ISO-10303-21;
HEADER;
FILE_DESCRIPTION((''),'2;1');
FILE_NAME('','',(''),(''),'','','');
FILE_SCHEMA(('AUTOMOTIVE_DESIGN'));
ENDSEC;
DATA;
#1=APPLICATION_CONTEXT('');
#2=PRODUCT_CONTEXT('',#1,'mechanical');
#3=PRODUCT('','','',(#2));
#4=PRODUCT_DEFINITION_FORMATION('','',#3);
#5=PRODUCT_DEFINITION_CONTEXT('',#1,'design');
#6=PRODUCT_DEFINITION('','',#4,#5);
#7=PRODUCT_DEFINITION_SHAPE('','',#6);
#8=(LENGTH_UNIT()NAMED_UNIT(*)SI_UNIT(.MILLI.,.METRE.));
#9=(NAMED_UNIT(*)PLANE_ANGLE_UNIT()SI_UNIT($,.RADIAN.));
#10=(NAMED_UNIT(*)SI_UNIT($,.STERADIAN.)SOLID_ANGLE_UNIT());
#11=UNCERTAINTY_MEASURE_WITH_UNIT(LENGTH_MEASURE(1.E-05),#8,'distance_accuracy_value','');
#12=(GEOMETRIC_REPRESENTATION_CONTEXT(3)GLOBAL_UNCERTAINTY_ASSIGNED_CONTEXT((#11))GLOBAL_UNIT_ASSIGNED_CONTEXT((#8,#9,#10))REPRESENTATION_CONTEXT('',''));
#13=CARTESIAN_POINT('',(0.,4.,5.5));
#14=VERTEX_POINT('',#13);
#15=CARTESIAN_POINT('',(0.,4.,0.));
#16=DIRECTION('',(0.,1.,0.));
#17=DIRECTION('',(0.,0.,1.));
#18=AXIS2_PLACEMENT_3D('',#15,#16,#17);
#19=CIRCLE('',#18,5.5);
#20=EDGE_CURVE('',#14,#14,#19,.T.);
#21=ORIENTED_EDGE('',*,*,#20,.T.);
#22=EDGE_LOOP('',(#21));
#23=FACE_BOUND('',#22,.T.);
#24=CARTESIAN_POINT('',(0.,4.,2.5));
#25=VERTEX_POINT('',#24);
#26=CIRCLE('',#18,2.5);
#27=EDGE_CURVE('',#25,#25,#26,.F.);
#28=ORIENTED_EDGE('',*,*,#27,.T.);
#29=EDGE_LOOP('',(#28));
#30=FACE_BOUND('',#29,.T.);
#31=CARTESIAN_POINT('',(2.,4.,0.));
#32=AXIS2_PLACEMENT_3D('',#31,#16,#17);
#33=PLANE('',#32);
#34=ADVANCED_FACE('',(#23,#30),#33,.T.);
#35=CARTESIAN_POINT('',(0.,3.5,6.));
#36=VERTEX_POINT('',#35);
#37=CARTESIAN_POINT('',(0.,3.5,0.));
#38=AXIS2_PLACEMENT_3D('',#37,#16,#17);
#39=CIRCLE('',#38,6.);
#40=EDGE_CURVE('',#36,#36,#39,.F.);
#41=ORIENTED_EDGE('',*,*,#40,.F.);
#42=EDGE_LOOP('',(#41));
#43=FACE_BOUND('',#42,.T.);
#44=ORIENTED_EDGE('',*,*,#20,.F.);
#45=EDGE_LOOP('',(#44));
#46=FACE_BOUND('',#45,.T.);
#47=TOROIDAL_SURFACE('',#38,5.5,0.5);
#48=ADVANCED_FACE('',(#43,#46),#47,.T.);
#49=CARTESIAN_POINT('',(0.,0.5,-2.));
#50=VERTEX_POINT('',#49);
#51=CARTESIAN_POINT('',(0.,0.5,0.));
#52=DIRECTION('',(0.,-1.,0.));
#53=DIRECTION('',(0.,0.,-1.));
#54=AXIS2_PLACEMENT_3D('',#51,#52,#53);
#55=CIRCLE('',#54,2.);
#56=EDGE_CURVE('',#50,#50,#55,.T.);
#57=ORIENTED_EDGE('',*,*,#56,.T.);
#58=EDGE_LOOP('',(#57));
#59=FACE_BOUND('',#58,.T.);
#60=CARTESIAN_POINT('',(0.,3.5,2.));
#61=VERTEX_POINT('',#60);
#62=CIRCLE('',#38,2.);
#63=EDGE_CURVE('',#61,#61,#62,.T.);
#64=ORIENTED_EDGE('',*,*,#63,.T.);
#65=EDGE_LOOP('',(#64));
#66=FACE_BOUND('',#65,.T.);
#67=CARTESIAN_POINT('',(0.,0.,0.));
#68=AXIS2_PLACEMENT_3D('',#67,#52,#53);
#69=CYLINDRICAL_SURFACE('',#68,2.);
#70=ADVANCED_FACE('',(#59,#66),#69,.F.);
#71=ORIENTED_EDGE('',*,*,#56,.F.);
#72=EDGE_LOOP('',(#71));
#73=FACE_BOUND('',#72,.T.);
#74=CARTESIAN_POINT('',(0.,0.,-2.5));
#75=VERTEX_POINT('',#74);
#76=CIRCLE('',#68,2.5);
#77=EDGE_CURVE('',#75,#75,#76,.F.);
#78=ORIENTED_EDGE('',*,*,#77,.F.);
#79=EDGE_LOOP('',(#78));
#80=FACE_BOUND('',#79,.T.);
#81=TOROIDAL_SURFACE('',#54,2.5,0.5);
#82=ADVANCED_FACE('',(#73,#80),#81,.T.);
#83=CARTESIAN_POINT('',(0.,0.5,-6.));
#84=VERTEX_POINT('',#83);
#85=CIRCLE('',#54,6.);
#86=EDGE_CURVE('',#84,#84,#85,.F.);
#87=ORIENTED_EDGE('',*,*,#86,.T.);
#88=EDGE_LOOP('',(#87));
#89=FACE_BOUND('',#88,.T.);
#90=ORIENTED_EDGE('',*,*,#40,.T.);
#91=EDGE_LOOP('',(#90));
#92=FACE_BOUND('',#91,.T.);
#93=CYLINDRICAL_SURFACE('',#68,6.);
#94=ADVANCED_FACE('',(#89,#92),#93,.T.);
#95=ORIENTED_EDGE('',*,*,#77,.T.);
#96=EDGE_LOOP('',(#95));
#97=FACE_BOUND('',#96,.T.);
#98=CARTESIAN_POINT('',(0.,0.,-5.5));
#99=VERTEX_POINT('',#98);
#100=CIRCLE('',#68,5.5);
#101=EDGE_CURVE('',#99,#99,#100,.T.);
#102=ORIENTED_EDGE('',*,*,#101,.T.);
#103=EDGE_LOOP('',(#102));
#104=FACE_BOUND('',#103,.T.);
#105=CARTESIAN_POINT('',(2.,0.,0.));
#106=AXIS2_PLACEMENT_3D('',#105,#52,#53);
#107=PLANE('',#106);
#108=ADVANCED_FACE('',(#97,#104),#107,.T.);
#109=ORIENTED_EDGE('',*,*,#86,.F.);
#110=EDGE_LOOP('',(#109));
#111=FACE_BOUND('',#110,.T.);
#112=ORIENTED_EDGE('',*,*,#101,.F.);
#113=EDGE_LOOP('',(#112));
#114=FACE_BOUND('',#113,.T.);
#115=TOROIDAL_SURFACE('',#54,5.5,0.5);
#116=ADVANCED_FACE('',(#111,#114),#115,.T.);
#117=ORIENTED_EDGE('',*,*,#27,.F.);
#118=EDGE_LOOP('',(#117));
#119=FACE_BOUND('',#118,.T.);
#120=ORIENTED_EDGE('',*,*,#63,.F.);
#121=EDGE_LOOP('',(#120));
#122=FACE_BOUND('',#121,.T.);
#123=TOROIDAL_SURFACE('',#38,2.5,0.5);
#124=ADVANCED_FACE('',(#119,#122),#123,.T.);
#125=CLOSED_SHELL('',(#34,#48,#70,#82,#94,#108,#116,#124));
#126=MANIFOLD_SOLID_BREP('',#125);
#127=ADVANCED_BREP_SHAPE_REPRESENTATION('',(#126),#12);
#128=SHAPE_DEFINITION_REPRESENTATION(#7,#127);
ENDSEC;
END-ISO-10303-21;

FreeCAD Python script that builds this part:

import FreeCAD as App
import Part
import Sketcher
from FreeCAD import Vector
Q = App.Units.Quantity


def edges_at(feature, points):
    """Names of the edges that pass closest to the given points."""
    edges = feature.Shape.Edges
    near = lambda p: min(range(len(edges)), key=lambda i: edges[i].distToShape(Part.Vertex(*p))[0])
    return sorted({f"Edge{near(p) + 1}" for p in points})


def add_polygon(sketch, points):
    """Adds a closed chain of lines whose ends are joined by coincident constraints."""
    first, n = sketch.GeometryCount, len(points)
    for a, b in zip(points, points[1:] + points[:1]):
        sketch.addGeometry(Part.LineSegment(App.Vector(*a, 0), App.Vector(*b, 0)), False)
    for i in range(n):
        sketch.addConstraint(Sketcher.Constraint("Coincident", first + i, 2, first + (i + 1) % n, 1))

doc = App.newDocument("Part")
params = doc.addObject("Spreadsheet::Sheet", "Params")
for row, (alias, value) in enumerate([
    ("sketch1_width", "4 mm"),
    ("revolution_angle", "360 deg"),
    ("fillet_radius", "0.5 mm"),
], start=1):
    params.set(f"A{row}", alias)
    params.set(f"B{row}", "=" + value)
    params.setAlias(f"B{row}", alias)

body = doc.addObject("PartDesign::Body", "Body")

# Sketch on XY plane
sketch1 = body.newObject("Sketcher::SketchObject", "Sketch")
sketch1.AttachmentSupport = (doc.getObject("XY_Plane"), [""])
sketch1.MapMode = "FlatFace"
add_polygon(sketch1, [(2, 4), (2, 0), (6, 0), (6, 4)])  # lines 0-3
sketch1.addConstraint([
    Sketcher.Constraint("Vertical", 0),
    Sketcher.Constraint("Horizontal", 1),
    Sketcher.Constraint("Vertical", 2),
    Sketcher.Constraint("Horizontal", 3),
    Sketcher.Constraint("PointOnObject", 0, 2, -1),
    Sketcher.Constraint("Equal", 3, 0),
    Sketcher.Constraint("DistanceX", 1, 1, 1, 2, Q("4 mm")),
    Sketcher.Constraint("DistanceX", -1, 1, 0, 2, Q("2 mm")),
])
sketch1.setExpression("Constraints[10]", "Params.sketch1_width")
revolution = body.newObject("PartDesign::Revolution", "Revolution")
revolution.Profile = sketch1
revolution.ReferenceAxis = (sketch1, ["V_Axis"])
revolution.setExpression("Angle", "Params.revolution_angle")
doc.recompute()

fillet = body.newObject("PartDesign::Fillet", "Fillet")
fillet.Base = (revolution, edges_at(revolution, [
    (0, 0, 2),
    (0, 0, 6),
    (0, 4, 6),
    (0, 4, 2),
]))
fillet.setExpression("Radius", "Params.fillet_radius")

doc.recompute()
